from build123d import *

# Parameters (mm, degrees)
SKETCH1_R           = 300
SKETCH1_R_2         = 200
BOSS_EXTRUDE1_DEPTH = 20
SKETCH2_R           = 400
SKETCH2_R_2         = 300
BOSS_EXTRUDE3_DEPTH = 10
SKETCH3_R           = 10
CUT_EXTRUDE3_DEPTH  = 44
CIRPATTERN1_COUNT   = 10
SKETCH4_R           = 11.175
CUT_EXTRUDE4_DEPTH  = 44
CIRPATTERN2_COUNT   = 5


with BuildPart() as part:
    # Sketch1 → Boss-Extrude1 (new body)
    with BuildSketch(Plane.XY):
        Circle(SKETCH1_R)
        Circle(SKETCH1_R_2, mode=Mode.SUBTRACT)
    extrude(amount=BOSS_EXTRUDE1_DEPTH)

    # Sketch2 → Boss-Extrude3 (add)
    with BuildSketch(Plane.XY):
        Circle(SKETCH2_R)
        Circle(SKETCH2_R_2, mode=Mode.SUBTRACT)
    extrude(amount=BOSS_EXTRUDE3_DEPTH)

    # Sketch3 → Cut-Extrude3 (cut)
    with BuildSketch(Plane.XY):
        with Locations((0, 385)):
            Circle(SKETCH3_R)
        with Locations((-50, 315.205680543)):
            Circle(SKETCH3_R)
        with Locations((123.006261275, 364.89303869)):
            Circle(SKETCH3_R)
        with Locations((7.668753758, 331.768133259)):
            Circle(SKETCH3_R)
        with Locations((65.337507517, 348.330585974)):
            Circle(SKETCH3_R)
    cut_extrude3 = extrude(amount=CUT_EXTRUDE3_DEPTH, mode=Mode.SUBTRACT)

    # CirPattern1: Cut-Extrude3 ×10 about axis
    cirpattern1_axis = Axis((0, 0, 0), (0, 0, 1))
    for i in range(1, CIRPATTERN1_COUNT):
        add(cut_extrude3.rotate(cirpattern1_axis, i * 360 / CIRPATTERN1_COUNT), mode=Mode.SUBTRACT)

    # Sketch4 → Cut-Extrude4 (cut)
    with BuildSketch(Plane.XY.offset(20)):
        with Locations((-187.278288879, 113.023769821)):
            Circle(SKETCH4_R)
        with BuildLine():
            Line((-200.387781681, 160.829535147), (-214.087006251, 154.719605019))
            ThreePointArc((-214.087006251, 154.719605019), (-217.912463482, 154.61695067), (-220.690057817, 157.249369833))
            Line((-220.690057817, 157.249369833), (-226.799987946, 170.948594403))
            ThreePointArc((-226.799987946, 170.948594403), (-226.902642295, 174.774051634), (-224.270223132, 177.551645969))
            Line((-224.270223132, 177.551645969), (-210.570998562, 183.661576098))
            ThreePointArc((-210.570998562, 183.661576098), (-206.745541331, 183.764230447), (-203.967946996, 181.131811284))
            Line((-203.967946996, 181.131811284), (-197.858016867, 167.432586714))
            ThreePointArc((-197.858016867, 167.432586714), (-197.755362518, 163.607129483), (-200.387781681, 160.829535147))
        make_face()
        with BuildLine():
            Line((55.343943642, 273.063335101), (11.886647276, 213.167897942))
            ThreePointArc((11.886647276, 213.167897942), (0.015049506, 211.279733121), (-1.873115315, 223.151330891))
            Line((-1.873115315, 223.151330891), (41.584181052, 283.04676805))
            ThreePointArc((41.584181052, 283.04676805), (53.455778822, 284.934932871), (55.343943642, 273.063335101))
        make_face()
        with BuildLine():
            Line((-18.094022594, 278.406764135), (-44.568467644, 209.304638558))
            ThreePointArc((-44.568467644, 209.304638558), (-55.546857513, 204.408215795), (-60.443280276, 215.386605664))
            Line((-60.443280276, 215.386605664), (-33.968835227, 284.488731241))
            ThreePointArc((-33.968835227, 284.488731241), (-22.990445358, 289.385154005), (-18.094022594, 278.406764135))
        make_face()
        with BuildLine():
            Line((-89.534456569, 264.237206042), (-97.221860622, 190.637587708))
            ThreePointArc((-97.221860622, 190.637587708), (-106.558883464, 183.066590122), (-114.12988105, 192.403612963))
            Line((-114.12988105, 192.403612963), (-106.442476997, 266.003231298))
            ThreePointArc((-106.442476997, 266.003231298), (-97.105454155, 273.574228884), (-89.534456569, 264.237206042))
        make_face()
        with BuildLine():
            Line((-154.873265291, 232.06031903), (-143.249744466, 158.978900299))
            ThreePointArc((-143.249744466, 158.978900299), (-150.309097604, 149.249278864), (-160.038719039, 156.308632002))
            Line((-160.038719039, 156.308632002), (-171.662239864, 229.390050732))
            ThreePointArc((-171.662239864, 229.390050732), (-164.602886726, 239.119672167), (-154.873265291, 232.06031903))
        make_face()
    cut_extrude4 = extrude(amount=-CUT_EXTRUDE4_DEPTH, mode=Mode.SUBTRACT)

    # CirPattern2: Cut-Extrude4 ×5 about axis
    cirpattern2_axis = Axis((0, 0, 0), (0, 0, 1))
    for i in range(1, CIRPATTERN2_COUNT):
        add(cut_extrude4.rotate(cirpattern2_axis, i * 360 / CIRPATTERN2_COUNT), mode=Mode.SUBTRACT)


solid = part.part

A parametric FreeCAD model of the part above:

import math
import FreeCAD as App
import Part
import Sketcher
from FreeCAD import Vector

doc = App.newDocument("Part")
params = doc.addObject("Spreadsheet::Sheet", "Params")
for row, (alias, value) in enumerate([
    ("sketch1_diameter", "600 mm"),
    ("sketch1_diameter2", "400 mm"),
    ("pad1_length", "20 mm"),
    ("sketch2_diameter", "800 mm"),
    ("sketch2_diameter2", "600 mm"),
    ("pad2_length", "10 mm"),
    ("sketch3_diameter", "20 mm"),
    ("pocket1_length", "44 mm"),
    ("sketch4_radius", "5 mm"),
    ("sketch4_radius2", "8.5 mm"),
    ("sketch4_diameter", "22.35 mm"),
    ("sketch4_length", "15 mm"),
    ("sketch4_length2", "74 mm"),
    ("pocket2_length", "44 mm"),
], start=1):
    params.set(f"A{row}", alias)
    params.set(f"B{row}", "=" + value)
    params.setAlias(f"B{row}", alias)

body = doc.addObject("PartDesign::Body", "Body")

sketch1 = body.newObject("Sketcher::SketchObject", "Sketch")
sketch1.AttachmentSupport = (doc.getObject("XY_Plane"), [""])
sketch1.MapMode = "FlatFace"
sketch1.addGeometry([
    Part.Circle(Vector(0, 0, 0), Vector(0, 0, 1), 300),
    Part.Circle(Vector(0, 0, 0), Vector(0, 0, 1), 200),
], False)
sketch1.addConstraint([
    Sketcher.Constraint("Coincident", 0, 3, -1, 1),
    Sketcher.Constraint("Coincident", 1, 3, -1, 1),
    Sketcher.Constraint("Diameter", 0, 600.0),
    Sketcher.Constraint("Diameter", 1, 400.0),
])
sketch1.setExpression("Constraints[2]", "Params.sketch1_diameter")
sketch1.setExpression("Constraints[3]", "Params.sketch1_diameter2")
pad1 = body.newObject("PartDesign::Pad", "Pad")
pad1.Profile = sketch1
pad1.setExpression("Length", "Params.pad1_length")

sketch2 = body.newObject("Sketcher::SketchObject", "Sketch001")
sketch2.AttachmentSupport = (doc.getObject("XY_Plane"), [""])
sketch2.MapMode = "FlatFace"
sketch2.addGeometry([
    Part.Circle(Vector(0, 0, 0), Vector(0, 0, 1), 400),
    Part.Circle(Vector(0, 0, 0), Vector(0, 0, 1), 300),
], False)
sketch2.addConstraint([
    Sketcher.Constraint("Coincident", 0, 3, -1, 1),
    Sketcher.Constraint("Coincident", 1, 3, -1, 1),
    Sketcher.Constraint("Diameter", 0, 800.0),
    Sketcher.Constraint("Diameter", 1, 600.0),
])
sketch2.setExpression("Constraints[2]", "Params.sketch2_diameter")
sketch2.setExpression("Constraints[3]", "Params.sketch2_diameter2")
pad2 = body.newObject("PartDesign::Pad", "Pad001")
pad2.Profile = sketch2
pad2.setExpression("Length", "Params.pad2_length")

sketch3 = body.newObject("Sketcher::SketchObject", "Sketch002")
sketch3.AttachmentSupport = (doc.getObject("XY_Plane"), [""])
sketch3.MapMode = "FlatFace"
sketch3.addGeometry([
    Part.Circle(Vector(0, 385, 0), Vector(0, 0, 1), 10),
    Part.Circle(Vector(-50, 315, 0), Vector(0, 0, 1), 10),
    Part.Circle(Vector(123, 365, 0), Vector(0, 0, 1), 10),
    Part.Circle(Vector(8, 332, 0), Vector(0, 0, 1), 10),
    Part.Circle(Vector(65, 348, 0), Vector(0, 0, 1), 10),
], False)
sketch3.addConstraint([
    Sketcher.Constraint("Equal", 0, 1),
    Sketcher.Constraint("Equal", 1, 2),
    Sketcher.Constraint("Equal", 2, 3),
    Sketcher.Constraint("Equal", 3, 4),
    Sketcher.Constraint("PointOnObject", 0, 3, -2),
    Sketcher.Constraint("Diameter", 0, 20.0),
    Sketcher.Constraint("DistanceY", -1, 1, 0, 3, 385.0),
    Sketcher.Constraint("DistanceX", 1, 3, -1, 1, 50.0),
    Sketcher.Constraint("DistanceY", -1, 1, 1, 3, 315.205681),
    Sketcher.Constraint("DistanceX", -1, 1, 2, 3, 123.006261),
    Sketcher.Constraint("DistanceY", -1, 1, 2, 3, 364.893039),
    Sketcher.Constraint("DistanceX", -1, 1, 3, 3, 7.668754),
    Sketcher.Constraint("DistanceY", -1, 1, 3, 3, 331.768133),
    Sketcher.Constraint("DistanceX", -1, 1, 4, 3, 65.337508),
    Sketcher.Constraint("DistanceY", -1, 1, 4, 3, 348.330586),
])
sketch3.setExpression("Constraints[5]", "Params.sketch3_diameter")
pocket1 = body.newObject("PartDesign::Pocket", "Pocket")
pocket1.Profile = sketch3
pocket1.setExpression("Length", "Params.pocket1_length")
pocket1.Reversed = True
doc.recompute()

polarpattern = body.newObject("PartDesign::PolarPattern", "PolarPattern")
polarpattern.Originals = [pocket1]
polarpattern.Axis = (doc.getObject("Z_Axis"), [""])
polarpattern.Angle = 360
polarpattern.Occurrences = 10
body.Tip = polarpattern

sketch4 = body.newObject("Sketcher::SketchObject", "Sketch003")
sketch4.AttachmentSupport = (doc.getObject("XY_Plane"), [""])
sketch4.MapMode = "FlatFace"
sketch4.AttachmentOffset = App.Placement(Vector(0, 0, 20), App.Rotation())
sketch4.addGeometry([
    Part.Circle(Vector(-187.3, 113, 0), Vector(0, 0, 1), 11.2),
    Part.LineSegment(Vector(-214.1, 154.7, 0), Vector(-200.4, 160.8, 0)),
    Part.ArcOfCircle(Part.Circle(Vector(-202.4, 165.4, 0), Vector(0, 0, 1), 5), math.radians(-66), math.radians(24)),
    Part.LineSegment(Vector(-197.9, 167.4, 0), Vector(-204, 181.1, 0)),
    Part.ArcOfCircle(Part.Circle(Vector(-208.5, 179.1, 0), Vector(0, 0, 1), 5), math.radians(24), math.radians(114)),
    Part.LineSegment(Vector(-210.6, 183.7, 0), Vector(-224.3, 177.6, 0)),
    Part.ArcOfCircle(Part.Circle(Vector(-222.2, 173, 0), Vector(0, 0, 1), 5), math.radians(114), math.radians(204)),
    Part.LineSegment(Vector(-226.8, 170.9, 0), Vector(-220.7, 157.2, 0)),
    Part.ArcOfCircle(Part.Circle(Vector(-216.1, 159.3, 0), Vector(0, 0, 1), 5), math.radians(-156), math.radians(-66)),
    Part.LineSegment(Vector(11.9, 213.2, 0), Vector(55.3, 273.1, 0)),
    Part.ArcOfCircle(Part.Circle(Vector(48.5, 278.1, 0), Vector(0, 0, 1), 8.5), math.radians(-36), math.radians(144)),
    Part.LineSegment(Vector(41.6, 283, 0), Vector(-1.9, 223.2, 0)),
    Part.ArcOfCircle(Part.Circle(Vector(5, 218.2, 0), Vector(0, 0, 1), 8.5), math.radians(144), math.radians(324)),
    Part.LineSegment(Vector(-44.6, 209.3, 0), Vector(-18.1, 278.4, 0)),
    Part.ArcOfCircle(Part.Circle(Vector(-26, 281.4, 0), Vector(0, 0, 1), 8.5), math.radians(-21), math.radians(159)),
    Part.LineSegment(Vector(-34, 284.5, 0), Vector(-60.4, 215.4, 0)),
    Part.ArcOfCircle(Part.Circle(Vector(-52.5, 212.3, 0), Vector(0, 0, 1), 8.5), math.radians(159), math.radians(339)),
    Part.LineSegment(Vector(-97.2, 190.6, 0), Vector(-89.5, 264.2, 0)),
    Part.ArcOfCircle(Part.Circle(Vector(-98, 265.1, 0), Vector(0, 0, 1), 8.5), math.radians(-6), math.radians(174)),
    Part.LineSegment(Vector(-106.4, 266, 0), Vector(-114.1, 192.4, 0)),
    Part.ArcOfCircle(Part.Circle(Vector(-105.7, 191.5, 0), Vector(0, 0, 1), 8.5), math.radians(174), math.radians(354)),
    Part.LineSegment(Vector(-143.2, 159, 0), Vector(-154.9, 232.1, 0)),
    Part.ArcOfCircle(Part.Circle(Vector(-163.3, 230.7, 0), Vector(0, 0, 1), 8.5), math.radians(9), math.radians(189)),
    Part.LineSegment(Vector(-171.7, 229.4, 0), Vector(-160, 156.3, 0)),
    Part.ArcOfCircle(Part.Circle(Vector(-151.6, 157.6, 0), Vector(0, 0, 1), 8.5), math.radians(-171), math.radians(9)),
], False)
sketch4.addConstraint([
    Sketcher.Constraint("Tangent", 1, 2, 2, 1),
    Sketcher.Constraint("Tangent", 2, 2, 3, 1),
    Sketcher.Constraint("Tangent", 3, 2, 4, 1),
    Sketcher.Constraint("Tangent", 4, 2, 5, 1),
    Sketcher.Constraint("Tangent", 5, 2, 6, 1),
    Sketcher.Constraint("Tangent", 6, 2, 7, 1),
    Sketcher.Constraint("Tangent", 7, 2, 8, 1),
    Sketcher.Constraint("Tangent", 8, 2, 1, 1),
    Sketcher.Constraint("Tangent", 9, 2, 10, 1),
    Sketcher.Constraint("Tangent", 10, 2, 11, 1),
    Sketcher.Constraint("Tangent", 11, 2, 12, 1),
    Sketcher.Constraint("Tangent", 12, 2, 9, 1),
    Sketcher.Constraint("Tangent", 13, 2, 14, 1),
    Sketcher.Constraint("Tangent", 14, 2, 15, 1),
    Sketcher.Constraint("Tangent", 15, 2, 16, 1),
    Sketcher.Constraint("Tangent", 16, 2, 13, 1),
    Sketcher.Constraint("Tangent", 17, 2, 18, 1),
    Sketcher.Constraint("Tangent", 18, 2, 19, 1),
    Sketcher.Constraint("Tangent", 19, 2, 20, 1),
    Sketcher.Constraint("Tangent", 20, 2, 17, 1),
    Sketcher.Constraint("Tangent", 21, 2, 22, 1),
    Sketcher.Constraint("Tangent", 22, 2, 23, 1),
    Sketcher.Constraint("Tangent", 23, 2, 24, 1),
    Sketcher.Constraint("Tangent", 24, 2, 21, 1),
    Sketcher.Constraint("Equal", 2, 4),
    Sketcher.Constraint("Equal", 4, 6),
    Sketcher.Constraint("Equal", 6, 8),
    Sketcher.Constraint("Equal", 10, 12),
    Sketcher.Constraint("Equal", 12, 14),
    Sketcher.Constraint("Equal", 14, 16),
    Sketcher.Constraint("Equal", 16, 18),
    Sketcher.Constraint("Equal", 18, 20),
    Sketcher.Constraint("Equal", 20, 22),
    Sketcher.Constraint("Equal", 22, 24),
    Sketcher.Constraint("Perpendicular", 1, 3),
    Sketcher.Constraint("Perpendicular", 3, 5),
    Sketcher.Constraint("Perpendicular", 5, 7),
    Sketcher.Constraint("Equal", 1, 3),
    Sketcher.Constraint("Equal", 11, 13),
    Sketcher.Constraint("Equal", 15, 17),
    Sketcher.Constraint("Equal", 19, 21),
    Sketcher.Constraint("Radius", 2, 5.0),
    Sketcher.Constraint("Radius", 10, 8.5),
    Sketcher.Constraint("Diameter", 0, 22.35),
    Sketcher.Constraint("Distance", 1, 15.0),
    Sketcher.Constraint("Distance", 9, 74.0),
    Sketcher.Constraint("DistanceX", 4, 2, -1, 1, 210.570999),
    Sketcher.Constraint("DistanceY", -1, 1, 20, 3, 191.5206),
    Sketcher.Constraint("DistanceY", -1, 1, 24, 2, 158.9789),
    Sketcher.Constraint("DistanceY", 0, 3, 4, 3, 66.071398),
    Sketcher.Constraint("DistanceY", 8, 3, 12, 3, 58.873601),
    Sketcher.Constraint("DistanceY", 24, 3, 4, 3, 21.451402),
    Sketcher.Constraint("DistanceX", 6, 3, 1, 2, 21.845798),
    Sketcher.Constraint("DistanceY", 11, 2, 14, 2, 61.3374),
    Sketcher.Constraint("DistanceY", 15, 2, 17, 2, 48.8506),
    Sketcher.Constraint("DistanceX", 19, 2, 15, 2, 53.686601),
    Sketcher.Constraint("DistanceX", 21, 2, 18, 3, 56.884799),
    Sketcher.Constraint("DistanceY", 21, 2, 18, 3, 33.0599),
    Sketcher.Constraint("DistanceX", 0, 3, -1, 1, 187.278289),
    Sketcher.Constraint("DistanceY", -1, 1, 0, 3, 113.02377),
    Sketcher.Constraint("DistanceY", -1, 1, 10, 3, 278.055052),
    Sketcher.Constraint("DistanceX", 14, 3, -1, 1, 26.031429),
    Sketcher.Constraint("DistanceX", -1, 1, 10, 2, 41.584181),
])
sketch4.setExpression("Constraints[41]", "Params.sketch4_radius")
sketch4.setExpression("Constraints[42]", "Params.sketch4_radius2")
sketch4.setExpression("Constraints[43]", "Params.sketch4_diameter")
sketch4.setExpression("Constraints[44]", "Params.sketch4_length")
sketch4.setExpression("Constraints[45]", "Params.sketch4_length2")
pocket2 = body.newObject("PartDesign::Pocket", "Pocket001")
pocket2.Profile = sketch4
pocket2.setExpression("Length", "Params.pocket2_length")
doc.recompute()

polarpattern2 = body.newObject("PartDesign::PolarPattern", "PolarPattern001")
polarpattern2.Originals = [pocket2]
polarpattern2.Axis = (doc.getObject("Z_Axis"), [""])
polarpattern2.Angle = 360
polarpattern2.Occurrences = 5
body.Tip = polarpattern2

doc.recompute()
